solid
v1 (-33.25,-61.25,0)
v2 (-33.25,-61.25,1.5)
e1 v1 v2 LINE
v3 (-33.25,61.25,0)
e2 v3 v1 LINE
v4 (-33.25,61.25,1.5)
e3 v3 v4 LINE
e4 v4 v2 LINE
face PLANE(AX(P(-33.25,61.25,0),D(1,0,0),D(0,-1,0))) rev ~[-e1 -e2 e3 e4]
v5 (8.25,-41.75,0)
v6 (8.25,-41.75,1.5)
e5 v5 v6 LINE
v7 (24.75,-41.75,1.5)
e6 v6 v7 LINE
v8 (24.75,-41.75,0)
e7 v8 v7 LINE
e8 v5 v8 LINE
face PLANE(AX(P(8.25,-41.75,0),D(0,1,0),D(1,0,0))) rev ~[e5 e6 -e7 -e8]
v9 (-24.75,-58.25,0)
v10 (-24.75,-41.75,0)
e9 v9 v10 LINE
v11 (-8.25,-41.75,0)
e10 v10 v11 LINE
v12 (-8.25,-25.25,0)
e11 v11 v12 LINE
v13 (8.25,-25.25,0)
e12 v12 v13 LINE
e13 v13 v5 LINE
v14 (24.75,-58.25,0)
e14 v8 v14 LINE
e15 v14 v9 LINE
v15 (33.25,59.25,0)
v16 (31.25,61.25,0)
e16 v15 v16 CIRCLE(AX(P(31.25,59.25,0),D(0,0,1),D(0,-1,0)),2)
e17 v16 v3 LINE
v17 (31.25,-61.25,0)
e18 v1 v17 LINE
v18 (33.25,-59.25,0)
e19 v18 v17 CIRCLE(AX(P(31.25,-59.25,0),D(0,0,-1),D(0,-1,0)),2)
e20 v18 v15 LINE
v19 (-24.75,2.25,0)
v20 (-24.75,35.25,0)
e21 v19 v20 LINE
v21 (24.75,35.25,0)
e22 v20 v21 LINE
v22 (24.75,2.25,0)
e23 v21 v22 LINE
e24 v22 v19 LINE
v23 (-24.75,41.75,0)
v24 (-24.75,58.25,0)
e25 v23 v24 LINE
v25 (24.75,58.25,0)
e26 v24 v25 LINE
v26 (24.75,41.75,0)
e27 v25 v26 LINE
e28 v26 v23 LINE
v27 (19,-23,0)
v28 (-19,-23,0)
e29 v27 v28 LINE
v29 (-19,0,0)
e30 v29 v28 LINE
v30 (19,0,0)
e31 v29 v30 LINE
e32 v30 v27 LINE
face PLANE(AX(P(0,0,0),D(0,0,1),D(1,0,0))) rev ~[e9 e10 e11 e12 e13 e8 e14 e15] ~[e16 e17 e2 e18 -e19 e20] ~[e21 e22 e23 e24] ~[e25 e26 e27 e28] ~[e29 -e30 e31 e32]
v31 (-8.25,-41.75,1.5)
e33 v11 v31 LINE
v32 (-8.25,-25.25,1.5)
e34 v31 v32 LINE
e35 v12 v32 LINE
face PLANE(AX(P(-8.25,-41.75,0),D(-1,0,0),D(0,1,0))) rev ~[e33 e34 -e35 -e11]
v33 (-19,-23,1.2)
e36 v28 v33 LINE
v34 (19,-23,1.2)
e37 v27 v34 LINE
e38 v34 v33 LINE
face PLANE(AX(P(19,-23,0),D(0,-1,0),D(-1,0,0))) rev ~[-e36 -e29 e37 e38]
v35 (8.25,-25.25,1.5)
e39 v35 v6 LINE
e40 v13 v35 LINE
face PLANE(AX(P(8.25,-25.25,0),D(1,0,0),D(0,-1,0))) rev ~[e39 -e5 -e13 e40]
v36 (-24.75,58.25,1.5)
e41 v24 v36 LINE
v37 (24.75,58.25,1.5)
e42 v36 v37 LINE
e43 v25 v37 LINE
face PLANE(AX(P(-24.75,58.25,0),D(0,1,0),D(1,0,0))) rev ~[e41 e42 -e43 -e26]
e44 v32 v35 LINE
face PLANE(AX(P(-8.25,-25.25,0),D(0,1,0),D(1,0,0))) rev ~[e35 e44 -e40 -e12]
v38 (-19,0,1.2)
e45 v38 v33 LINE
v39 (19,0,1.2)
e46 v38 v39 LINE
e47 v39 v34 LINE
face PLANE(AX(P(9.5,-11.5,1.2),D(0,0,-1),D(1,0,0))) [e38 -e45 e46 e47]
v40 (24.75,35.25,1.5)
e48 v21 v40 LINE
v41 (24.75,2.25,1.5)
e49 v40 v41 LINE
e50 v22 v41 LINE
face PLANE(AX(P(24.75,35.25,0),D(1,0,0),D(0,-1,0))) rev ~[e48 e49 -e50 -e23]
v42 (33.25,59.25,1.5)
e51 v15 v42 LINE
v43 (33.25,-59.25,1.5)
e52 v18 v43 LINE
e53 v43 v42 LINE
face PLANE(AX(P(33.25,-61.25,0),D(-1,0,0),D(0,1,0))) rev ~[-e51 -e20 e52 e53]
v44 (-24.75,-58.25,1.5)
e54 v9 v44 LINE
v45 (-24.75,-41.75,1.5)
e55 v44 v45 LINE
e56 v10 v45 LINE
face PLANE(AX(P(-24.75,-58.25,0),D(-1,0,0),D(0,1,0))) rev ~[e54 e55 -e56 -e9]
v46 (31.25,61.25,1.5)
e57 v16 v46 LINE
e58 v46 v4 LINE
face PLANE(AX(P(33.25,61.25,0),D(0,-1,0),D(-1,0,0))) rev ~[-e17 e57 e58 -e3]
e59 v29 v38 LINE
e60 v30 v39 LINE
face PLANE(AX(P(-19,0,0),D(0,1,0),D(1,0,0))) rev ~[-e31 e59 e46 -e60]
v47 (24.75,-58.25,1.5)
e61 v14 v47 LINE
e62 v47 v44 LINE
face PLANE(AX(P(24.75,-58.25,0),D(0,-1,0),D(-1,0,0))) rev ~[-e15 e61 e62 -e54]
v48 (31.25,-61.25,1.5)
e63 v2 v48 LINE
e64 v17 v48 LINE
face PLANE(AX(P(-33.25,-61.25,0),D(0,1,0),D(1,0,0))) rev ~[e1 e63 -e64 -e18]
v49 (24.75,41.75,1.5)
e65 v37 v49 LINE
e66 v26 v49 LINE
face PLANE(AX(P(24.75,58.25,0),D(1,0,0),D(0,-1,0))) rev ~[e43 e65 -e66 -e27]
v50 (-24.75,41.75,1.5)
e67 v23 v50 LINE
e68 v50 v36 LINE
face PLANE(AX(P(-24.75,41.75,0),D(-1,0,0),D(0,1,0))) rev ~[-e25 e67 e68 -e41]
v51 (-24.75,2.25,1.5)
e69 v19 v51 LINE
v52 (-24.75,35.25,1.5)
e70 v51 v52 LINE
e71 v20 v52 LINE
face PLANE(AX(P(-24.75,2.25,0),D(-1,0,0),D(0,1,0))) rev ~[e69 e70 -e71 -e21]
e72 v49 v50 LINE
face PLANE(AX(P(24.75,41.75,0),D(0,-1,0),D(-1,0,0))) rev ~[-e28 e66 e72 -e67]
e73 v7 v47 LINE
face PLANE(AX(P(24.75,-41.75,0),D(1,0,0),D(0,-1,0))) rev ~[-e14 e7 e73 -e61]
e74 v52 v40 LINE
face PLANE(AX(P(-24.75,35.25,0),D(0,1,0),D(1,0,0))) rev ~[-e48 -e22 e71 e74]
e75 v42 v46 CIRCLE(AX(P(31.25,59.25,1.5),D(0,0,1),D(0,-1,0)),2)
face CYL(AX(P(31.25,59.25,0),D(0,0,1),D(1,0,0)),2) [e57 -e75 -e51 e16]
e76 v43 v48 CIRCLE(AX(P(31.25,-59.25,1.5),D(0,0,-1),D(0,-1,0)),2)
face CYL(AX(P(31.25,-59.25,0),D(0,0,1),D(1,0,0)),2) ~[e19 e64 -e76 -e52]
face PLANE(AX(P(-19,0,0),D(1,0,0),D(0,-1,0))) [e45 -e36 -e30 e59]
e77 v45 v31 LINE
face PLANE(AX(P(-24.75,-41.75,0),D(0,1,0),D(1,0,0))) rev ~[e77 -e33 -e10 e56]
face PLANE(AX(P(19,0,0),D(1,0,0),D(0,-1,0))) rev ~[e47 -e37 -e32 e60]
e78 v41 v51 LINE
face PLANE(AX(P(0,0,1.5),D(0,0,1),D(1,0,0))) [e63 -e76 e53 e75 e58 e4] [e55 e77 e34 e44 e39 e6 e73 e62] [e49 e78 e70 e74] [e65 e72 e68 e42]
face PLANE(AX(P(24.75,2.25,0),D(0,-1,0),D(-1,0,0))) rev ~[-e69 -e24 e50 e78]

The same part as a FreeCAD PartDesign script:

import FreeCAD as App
import Part
import Sketcher
from FreeCAD import Vector


def edges_at(feature, points):
    """Names of the edges that pass closest to the given points."""
    edges = feature.Shape.Edges
    near = lambda p: min(range(len(edges)), key=lambda i: edges[i].distToShape(Part.Vertex(*p))[0])
    return sorted({f"Edge{near(p) + 1}" for p in points})

doc = App.newDocument("Part")
body = doc.addObject("PartDesign::Body", "Body")

sketch1 = doc.addObject("Sketcher::SketchObject", "Sketch")
body.addObject(sketch1)
sketch1.AttachmentSupport = (doc.XY_Plane, [""])
sketch1.MapMode = "FlatFace"
sketch1.addGeometry([
    Part.LineSegment(Vector(33, -61, 0), Vector(33, 61, 0)),
    Part.LineSegment(Vector(33, 61, 0), Vector(-33, 61, 0)),
    Part.LineSegment(Vector(-33, 61, 0), Vector(-33, -61, 0)),
    Part.LineSegment(Vector(-33, -61, 0), Vector(33, -61, 0)),
    Part.LineSegment(Vector(25, -42, 0), Vector(25, -58, 0)),
    Part.LineSegment(Vector(25, -58, 0), Vector(-25, -58, 0)),
    Part.LineSegment(Vector(-25, -58, 0), Vector(-25, -42, 0)),
    Part.LineSegment(Vector(-25, -42, 0), Vector(-8, -42, 0)),
    Part.LineSegment(Vector(-8, -42, 0), Vector(-8, -25, 0)),
    Part.LineSegment(Vector(-8, -25, 0), Vector(8, -25, 0)),
    Part.LineSegment(Vector(8, -25, 0), Vector(8, -42, 0)),
    Part.LineSegment(Vector(8, -42, 0), Vector(25, -42, 0)),
    Part.LineSegment(Vector(-25, 2, 0), Vector(-25, 35, 0)),
    Part.LineSegment(Vector(-25, 35, 0), Vector(25, 35, 0)),
    Part.LineSegment(Vector(25, 35, 0), Vector(25, 2, 0)),
    Part.LineSegment(Vector(25, 2, 0), Vector(-25, 2, 0)),
    Part.LineSegment(Vector(-25, 42, 0), Vector(-25, 58, 0)),
    Part.LineSegment(Vector(-25, 58, 0), Vector(25, 58, 0)),
    Part.LineSegment(Vector(25, 58, 0), Vector(25, 42, 0)),
    Part.LineSegment(Vector(25, 42, 0), Vector(-25, 42, 0)),
], False)
sketch1.addConstraint([
    Sketcher.Constraint("Coincident", 0, 2, 1, 1),
    Sketcher.Constraint("Coincident", 1, 2, 2, 1),
    Sketcher.Constraint("Coincident", 2, 2, 3, 1),
    Sketcher.Constraint("Coincident", 3, 2, 0, 1),
    Sketcher.Constraint("Coincident", 4, 2, 5, 1),
    Sketcher.Constraint("Coincident", 5, 2, 6, 1),
    Sketcher.Constraint("Coincident", 6, 2, 7, 1),
    Sketcher.Constraint("Coincident", 7, 2, 8, 1),
    Sketcher.Constraint("Coincident", 8, 2, 9, 1),
    Sketcher.Constraint("Coincident", 9, 2, 10, 1),
    Sketcher.Constraint("Coincident", 10, 2, 11, 1),
    Sketcher.Constraint("Coincident", 11, 2, 4, 1),
    Sketcher.Constraint("Coincident", 12, 2, 13, 1),
    Sketcher.Constraint("Coincident", 13, 2, 14, 1),
    Sketcher.Constraint("Coincident", 14, 2, 15, 1),
    Sketcher.Constraint("Coincident", 15, 2, 12, 1),
    Sketcher.Constraint("Coincident", 16, 2, 17, 1),
    Sketcher.Constraint("Coincident", 17, 2, 18, 1),
    Sketcher.Constraint("Coincident", 18, 2, 19, 1),
    Sketcher.Constraint("Coincident", 19, 2, 16, 1),
    Sketcher.Constraint("Vertical", 0),
    Sketcher.Constraint("Horizontal", 1),
    Sketcher.Constraint("Vertical", 2),
    Sketcher.Constraint("Horizontal", 3),
    Sketcher.Constraint("Vertical", 4),
    Sketcher.Constraint("Horizontal", 5),
    Sketcher.Constraint("Vertical", 6),
    Sketcher.Constraint("Horizontal", 7),
    Sketcher.Constraint("Vertical", 8),
    Sketcher.Constraint("Horizontal", 9),
    Sketcher.Constraint("Vertical", 10),
    Sketcher.Constraint("Horizontal", 11),
    Sketcher.Constraint("Vertical", 12),
    Sketcher.Constraint("Horizontal", 13),
    Sketcher.Constraint("Vertical", 14),
    Sketcher.Constraint("Horizontal", 15),
    Sketcher.Constraint("Vertical", 16),
    Sketcher.Constraint("Horizontal", 17),
    Sketcher.Constraint("Vertical", 18),
    Sketcher.Constraint("Horizontal", 19),
    Sketcher.Constraint("Symmetric", 0, 2, 2, 2, -1, 1),
    Sketcher.Constraint("Symmetric", 4, 2, 16, 2, -1, 1),
    Sketcher.Constraint("Symmetric", 6, 2, 18, 2, -1, 1),
    Sketcher.Constraint("Symmetric", 7, 2, 10, 2, -2),
    Sketcher.Constraint("Vertical", 6, 2, 12, 2),
    Sketcher.Constraint("Vertical", 11, 2, 13, 2),
    Sketcher.Constraint("Vertical", 15, 2, 16, 2),
    Sketcher.Constraint("Equal", 7, 9),
    Sketcher.Constraint("Equal", 11, 4),
    Sketcher.Constraint("Equal", 6, 8),
    Sketcher.Constraint("DistanceY", 12, 1, 12, 2, 33.0),
    Sketcher.Constraint("DistanceX", 1, 2, 1, 1, 66.5),
    Sketcher.Constraint("DistanceX", 5, 2, 5, 1, 49.5),
    Sketcher.Constraint("DistanceY", 0, 1, 0, 2, 122.5),
    Sketcher.Constraint("DistanceY", 3, 2, 4, 2, 3.0),
    Sketcher.Constraint("DistanceY", 12, 2, 1, 2, 26.0),
])
pad1 = doc.addObject("PartDesign::Pad", "Pad")
body.addObject(pad1)
pad1.Profile = sketch1
pad1.Length = 1.5

sketch2 = doc.addObject("Sketcher::SketchObject", "Sketch001")
body.addObject(sketch2)
sketch2.AttachmentSupport = (doc.XY_Plane, [""])
sketch2.MapMode = "FlatFace"
sketch2.addGeometry([
    Part.LineSegment(Vector(19, 0, 0), Vector(19, -23, 0)),
    Part.LineSegment(Vector(19, -23, 0), Vector(-19, -23, 0)),
    Part.LineSegment(Vector(-19, -23, 0), Vector(-19, 0, 0)),
    Part.LineSegment(Vector(-19, 0, 0), Vector(19, 0, 0)),
], False)
sketch2.addConstraint([
    Sketcher.Constraint("Coincident", 0, 2, 1, 1),
    Sketcher.Constraint("Coincident", 1, 2, 2, 1),
    Sketcher.Constraint("Coincident", 2, 2, 3, 1),
    Sketcher.Constraint("Coincident", 3, 2, 0, 1),
    Sketcher.Constraint("Vertical", 0),
    Sketcher.Constraint("Horizontal", 1),
    Sketcher.Constraint("Vertical", 2),
    Sketcher.Constraint("Horizontal", 3),
    Sketcher.Constraint("Symmetric", 2, 2, 3, 2, -1, 1),
    Sketcher.Constraint("DistanceX", 1, 2, 1, 1, 38.0),
    Sketcher.Constraint("DistanceY", 0, 2, 0, 1, 23.0),
])
pocket1 = doc.addObject("PartDesign::Pocket", "Pocket")
body.addObject(pocket1)
pocket1.Profile = sketch2
pocket1.Length = 1.2
pocket1.Reversed = True
doc.recompute()

fillet = doc.addObject("PartDesign::Fillet", "Fillet")
body.addObject(fillet)
fillet.Base = (pocket1, edges_at(pocket1, [(33.25, -61.25, 0.75), (33.25, 61.25, 0.75)]))
fillet.Radius = 2

doc.recompute()
